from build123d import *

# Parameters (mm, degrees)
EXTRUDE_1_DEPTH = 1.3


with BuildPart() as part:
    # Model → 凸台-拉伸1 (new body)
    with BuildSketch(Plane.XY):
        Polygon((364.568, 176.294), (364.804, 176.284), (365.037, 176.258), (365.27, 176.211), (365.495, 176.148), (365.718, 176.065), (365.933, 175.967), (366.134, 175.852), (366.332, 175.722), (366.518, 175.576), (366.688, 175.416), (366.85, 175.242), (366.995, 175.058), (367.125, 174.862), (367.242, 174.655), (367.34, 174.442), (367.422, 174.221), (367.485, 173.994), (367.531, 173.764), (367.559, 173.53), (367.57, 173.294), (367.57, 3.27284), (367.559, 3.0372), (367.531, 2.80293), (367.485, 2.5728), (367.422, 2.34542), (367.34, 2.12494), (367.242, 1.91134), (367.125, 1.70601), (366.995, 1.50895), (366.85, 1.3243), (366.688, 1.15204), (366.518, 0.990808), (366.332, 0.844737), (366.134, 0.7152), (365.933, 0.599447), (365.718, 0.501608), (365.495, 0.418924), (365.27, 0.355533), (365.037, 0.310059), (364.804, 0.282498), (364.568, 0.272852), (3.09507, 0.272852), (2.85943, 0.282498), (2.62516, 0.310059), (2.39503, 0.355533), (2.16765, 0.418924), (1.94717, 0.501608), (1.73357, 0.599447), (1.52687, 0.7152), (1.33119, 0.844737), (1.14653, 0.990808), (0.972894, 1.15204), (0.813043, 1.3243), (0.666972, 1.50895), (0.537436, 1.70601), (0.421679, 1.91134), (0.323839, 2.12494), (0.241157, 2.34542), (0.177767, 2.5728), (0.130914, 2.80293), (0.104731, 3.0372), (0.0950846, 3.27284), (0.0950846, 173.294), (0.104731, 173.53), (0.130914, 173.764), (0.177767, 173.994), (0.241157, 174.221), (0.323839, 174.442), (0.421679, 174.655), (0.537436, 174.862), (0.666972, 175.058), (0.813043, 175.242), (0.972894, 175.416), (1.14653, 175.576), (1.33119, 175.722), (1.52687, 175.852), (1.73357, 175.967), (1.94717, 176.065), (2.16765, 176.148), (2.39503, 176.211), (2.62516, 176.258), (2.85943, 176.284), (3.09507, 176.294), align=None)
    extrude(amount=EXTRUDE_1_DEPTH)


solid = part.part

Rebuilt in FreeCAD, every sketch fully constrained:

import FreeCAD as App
import Part
import Sketcher

V = App.Vector
Q = App.Units.Quantity

doc = App.newDocument("Part")
body = doc.addObject("PartDesign::Body", "Body")

# Sketch on XY plane
sketch1 = doc.addObject("Sketcher::SketchObject", "Sketch")
body.addObject(sketch1)
sketch1.AttachmentSupport = (doc.XY_Plane, [""])
sketch1.MapMode = "FlatFace"
sketch1.addGeometry([
    Part.LineSegment(V(364.804, 176.284, 0), V(364.568, 176.294, 0)),  # 0
    Part.LineSegment(V(364.568, 176.294, 0), V(3.09507, 176.294, 0)),  # 1
    Part.LineSegment(V(3.09507, 176.294, 0), V(2.85943, 176.284, 0)),  # 2
    Part.LineSegment(V(2.85943, 176.284, 0), V(2.62516, 176.258, 0)),  # 3
    Part.LineSegment(V(2.62516, 176.258, 0), V(2.39503, 176.211, 0)),  # 4
    Part.LineSegment(V(2.39503, 176.211, 0), V(2.16765, 176.148, 0)),  # 5
    Part.LineSegment(V(2.16765, 176.148, 0), V(1.94717, 176.065, 0)),  # 6
    Part.LineSegment(V(1.94717, 176.065, 0), V(1.73357, 175.967, 0)),  # 7
    Part.LineSegment(V(1.73357, 175.967, 0), V(1.52687, 175.852, 0)),  # 8
    Part.LineSegment(V(1.52687, 175.852, 0), V(1.33119, 175.722, 0)),  # 9
    Part.LineSegment(V(1.33119, 175.722, 0), V(1.14653, 175.576, 0)),  # 10
    Part.LineSegment(V(1.14653, 175.576, 0), V(0.972894, 175.416, 0)),  # 11
    Part.LineSegment(V(0.972894, 175.416, 0), V(0.813043, 175.242, 0)),  # 12
    Part.LineSegment(V(0.813043, 175.242, 0), V(0.666972, 175.058, 0)),  # 13
    Part.LineSegment(V(0.666972, 175.058, 0), V(0.537436, 174.862, 0)),  # 14
    Part.LineSegment(V(0.537436, 174.862, 0), V(0.421679, 174.655, 0)),  # 15
    Part.LineSegment(V(0.421679, 174.655, 0), V(0.323839, 174.442, 0)),  # 16
    Part.LineSegment(V(0.323839, 174.442, 0), V(0.241157, 174.221, 0)),  # 17
    Part.LineSegment(V(0.241157, 174.221, 0), V(0.177767, 173.994, 0)),  # 18
    Part.LineSegment(V(0.177767, 173.994, 0), V(0.130914, 173.764, 0)),  # 19
    Part.LineSegment(V(0.130914, 173.764, 0), V(0.104731, 173.53, 0)),  # 20
    Part.LineSegment(V(0.104731, 173.53, 0), V(0.095085, 173.294, 0)),  # 21
    Part.LineSegment(V(0.095085, 173.294, 0), V(0.095085, 3.27284, 0)),  # 22
    Part.LineSegment(V(0.095085, 3.27284, 0), V(0.104731, 3.0372, 0)),  # 23
    Part.LineSegment(V(0.104731, 3.0372, 0), V(0.130914, 2.80293, 0)),  # 24
    Part.LineSegment(V(0.130914, 2.80293, 0), V(0.177767, 2.5728, 0)),  # 25
    Part.LineSegment(V(0.177767, 2.5728, 0), V(0.241157, 2.34542, 0)),  # 26
    Part.LineSegment(V(0.241157, 2.34542, 0), V(0.323839, 2.12494, 0)),  # 27
    Part.LineSegment(V(0.323839, 2.12494, 0), V(0.421679, 1.91134, 0)),  # 28
    Part.LineSegment(V(0.421679, 1.91134, 0), V(0.537436, 1.70601, 0)),  # 29
    Part.LineSegment(V(0.537436, 1.70601, 0), V(0.666972, 1.50895, 0)),  # 30
    Part.LineSegment(V(0.666972, 1.50895, 0), V(0.813043, 1.3243, 0)),  # 31
    Part.LineSegment(V(0.813043, 1.3243, 0), V(0.972894, 1.15204, 0)),  # 32
    Part.LineSegment(V(0.972894, 1.15204, 0), V(1.14653, 0.990808, 0)),  # 33
    Part.LineSegment(V(1.14653, 0.990808, 0), V(1.33119, 0.844737, 0)),  # 34
    Part.LineSegment(V(1.33119, 0.844737, 0), V(1.52687, 0.7152, 0)),  # 35
    Part.LineSegment(V(1.52687, 0.7152, 0), V(1.73357, 0.599447, 0)),  # 36
    Part.LineSegment(V(1.73357, 0.599447, 0), V(1.94717, 0.501608, 0)),  # 37
    Part.LineSegment(V(1.94717, 0.501608, 0), V(2.16765, 0.418924, 0)),  # 38
    Part.LineSegment(V(2.16765, 0.418924, 0), V(2.39503, 0.355533, 0)),  # 39
    Part.LineSegment(V(2.39503, 0.355533, 0), V(2.62516, 0.310059, 0)),  # 40
    Part.LineSegment(V(2.62516, 0.310059, 0), V(2.85943, 0.282498, 0)),  # 41
    Part.LineSegment(V(2.85943, 0.282498, 0), V(3.09507, 0.272852, 0)),  # 42
    Part.LineSegment(V(3.09507, 0.272852, 0), V(364.568, 0.272852, 0)),  # 43
    Part.LineSegment(V(364.568, 0.272852, 0), V(364.804, 0.282498, 0)),  # 44
    Part.LineSegment(V(364.804, 0.282498, 0), V(365.037, 0.310059, 0)),  # 45
    Part.LineSegment(V(365.037, 0.310059, 0), V(365.27, 0.355533, 0)),  # 46
    Part.LineSegment(V(365.27, 0.355533, 0), V(365.495, 0.418924, 0)),  # 47
    Part.LineSegment(V(365.495, 0.418924, 0), V(365.718, 0.501608, 0)),  # 48
    Part.LineSegment(V(365.718, 0.501608, 0), V(365.933, 0.599447, 0)),  # 49
    Part.LineSegment(V(365.933, 0.599447, 0), V(366.134, 0.7152, 0)),  # 50
    Part.LineSegment(V(366.134, 0.7152, 0), V(366.332, 0.844737, 0)),  # 51
    Part.LineSegment(V(366.332, 0.844737, 0), V(366.518, 0.990808, 0)),  # 52
    Part.LineSegment(V(366.518, 0.990808, 0), V(366.688, 1.15204, 0)),  # 53
    Part.LineSegment(V(366.688, 1.15204, 0), V(366.85, 1.3243, 0)),  # 54
    Part.LineSegment(V(366.85, 1.3243, 0), V(366.995, 1.50895, 0)),  # 55
    Part.LineSegment(V(366.995, 1.50895, 0), V(367.125, 1.70601, 0)),  # 56
    Part.LineSegment(V(367.125, 1.70601, 0), V(367.242, 1.91134, 0)),  # 57
    Part.LineSegment(V(367.242, 1.91134, 0), V(367.34, 2.12494, 0)),  # 58
    Part.LineSegment(V(367.34, 2.12494, 0), V(367.422, 2.34542, 0)),  # 59
    Part.LineSegment(V(367.422, 2.34542, 0), V(367.485, 2.5728, 0)),  # 60
    Part.LineSegment(V(367.485, 2.5728, 0), V(367.531, 2.80293, 0)),  # 61
    Part.LineSegment(V(367.531, 2.80293, 0), V(367.559, 3.0372, 0)),  # 62
    Part.LineSegment(V(367.559, 3.0372, 0), V(367.57, 3.27284, 0)),  # 63
    Part.LineSegment(V(367.57, 3.27284, 0), V(367.57, 173.294, 0)),  # 64
    Part.LineSegment(V(367.57, 173.294, 0), V(367.559, 173.53, 0)),  # 65
    Part.LineSegment(V(367.559, 173.53, 0), V(367.531, 173.764, 0)),  # 66
    Part.LineSegment(V(367.531, 173.764, 0), V(367.485, 173.994, 0)),  # 67
    Part.LineSegment(V(367.485, 173.994, 0), V(367.422, 174.221, 0)),  # 68
    Part.LineSegment(V(367.422, 174.221, 0), V(367.34, 174.442, 0)),  # 69
    Part.LineSegment(V(367.34, 174.442, 0), V(367.242, 174.655, 0)),  # 70
    Part.LineSegment(V(367.242, 174.655, 0), V(367.125, 174.862, 0)),  # 71
    Part.LineSegment(V(367.125, 174.862, 0), V(366.995, 175.058, 0)),  # 72
    Part.LineSegment(V(366.995, 175.058, 0), V(366.85, 175.242, 0)),  # 73
    Part.LineSegment(V(366.85, 175.242, 0), V(366.688, 175.416, 0)),  # 74
    Part.LineSegment(V(366.688, 175.416, 0), V(366.518, 175.576, 0)),  # 75
    Part.LineSegment(V(366.518, 175.576, 0), V(366.332, 175.722, 0)),  # 76
    Part.LineSegment(V(366.332, 175.722, 0), V(366.134, 175.852, 0)),  # 77
    Part.LineSegment(V(366.134, 175.852, 0), V(365.933, 175.967, 0)),  # 78
    Part.LineSegment(V(365.933, 175.967, 0), V(365.718, 176.065, 0)),  # 79
    Part.LineSegment(V(365.718, 176.065, 0), V(365.495, 176.148, 0)),  # 80
    Part.LineSegment(V(365.495, 176.148, 0), V(365.27, 176.211, 0)),  # 81
    Part.LineSegment(V(365.27, 176.211, 0), V(365.037, 176.258, 0)),  # 82
    Part.LineSegment(V(365.037, 176.258, 0), V(364.804, 176.284, 0)),  # 83
], False)
sketch1.addConstraint([
    Sketcher.Constraint("Coincident", 0, 2, 1, 1),
    Sketcher.Constraint("Coincident", 1, 2, 2, 1),
    Sketcher.Constraint("Coincident", 2, 2, 3, 1),
    Sketcher.Constraint("Coincident", 3, 2, 4, 1),
    Sketcher.Constraint("Coincident", 4, 2, 5, 1),
    Sketcher.Constraint("Coincident", 5, 2, 6, 1),
    Sketcher.Constraint("Coincident", 6, 2, 7, 1),
    Sketcher.Constraint("Coincident", 7, 2, 8, 1),
    Sketcher.Constraint("Coincident", 8, 2, 9, 1),
    Sketcher.Constraint("Coincident", 9, 2, 10, 1),
    Sketcher.Constraint("Coincident", 10, 2, 11, 1),
    Sketcher.Constraint("Coincident", 11, 2, 12, 1),
    Sketcher.Constraint("Coincident", 12, 2, 13, 1),
    Sketcher.Constraint("Coincident", 13, 2, 14, 1),
    Sketcher.Constraint("Coincident", 14, 2, 15, 1),
    Sketcher.Constraint("Coincident", 15, 2, 16, 1),
    Sketcher.Constraint("Coincident", 16, 2, 17, 1),
    Sketcher.Constraint("Coincident", 17, 2, 18, 1),
    Sketcher.Constraint("Coincident", 18, 2, 19, 1),
    Sketcher.Constraint("Coincident", 19, 2, 20, 1),
    Sketcher.Constraint("Coincident", 20, 2, 21, 1),
    Sketcher.Constraint("Coincident", 21, 2, 22, 1),
    Sketcher.Constraint("Coincident", 22, 2, 23, 1),
    Sketcher.Constraint("Coincident", 23, 2, 24, 1),
    Sketcher.Constraint("Coincident", 24, 2, 25, 1),
    Sketcher.Constraint("Coincident", 25, 2, 26, 1),
    Sketcher.Constraint("Coincident", 26, 2, 27, 1),
    Sketcher.Constraint("Coincident", 27, 2, 28, 1),
    Sketcher.Constraint("Coincident", 28, 2, 29, 1),
    Sketcher.Constraint("Coincident", 29, 2, 30, 1),
    Sketcher.Constraint("Coincident", 30, 2, 31, 1),
    Sketcher.Constraint("Coincident", 31, 2, 32, 1),
    Sketcher.Constraint("Coincident", 32, 2, 33, 1),
    Sketcher.Constraint("Coincident", 33, 2, 34, 1),
    Sketcher.Constraint("Coincident", 34, 2, 35, 1),
    Sketcher.Constraint("Coincident", 35, 2, 36, 1),
    Sketcher.Constraint("Coincident", 36, 2, 37, 1),
    Sketcher.Constraint("Coincident", 37, 2, 38, 1),
    Sketcher.Constraint("Coincident", 38, 2, 39, 1),
    Sketcher.Constraint("Coincident", 39, 2, 40, 1),
    Sketcher.Constraint("Coincident", 40, 2, 41, 1),
    Sketcher.Constraint("Coincident", 41, 2, 42, 1),
    Sketcher.Constraint("Coincident", 42, 2, 43, 1),
    Sketcher.Constraint("Coincident", 43, 2, 44, 1),
    Sketcher.Constraint("Coincident", 44, 2, 45, 1),
    Sketcher.Constraint("Coincident", 45, 2, 46, 1),
    Sketcher.Constraint("Coincident", 46, 2, 47, 1),
    Sketcher.Constraint("Coincident", 47, 2, 48, 1),
    Sketcher.Constraint("Coincident", 48, 2, 49, 1),
    Sketcher.Constraint("Coincident", 49, 2, 50, 1),
    Sketcher.Constraint("Coincident", 50, 2, 51, 1),
    Sketcher.Constraint("Coincident", 51, 2, 52, 1),
    Sketcher.Constraint("Coincident", 52, 2, 53, 1),
    Sketcher.Constraint("Coincident", 53, 2, 54, 1),
    Sketcher.Constraint("Coincident", 54, 2, 55, 1),
    Sketcher.Constraint("Coincident", 55, 2, 56, 1),
    Sketcher.Constraint("Coincident", 56, 2, 57, 1),
    Sketcher.Constraint("Coincident", 57, 2, 58, 1),
    Sketcher.Constraint("Coincident", 58, 2, 59, 1),
    Sketcher.Constraint("Coincident", 59, 2, 60, 1),
    Sketcher.Constraint("Coincident", 60, 2, 61, 1),
    Sketcher.Constraint("Coincident", 61, 2, 62, 1),
    Sketcher.Constraint("Coincident", 62, 2, 63, 1),
    Sketcher.Constraint("Coincident", 63, 2, 64, 1),
    Sketcher.Constraint("Coincident", 64, 2, 65, 1),
    Sketcher.Constraint("Coincident", 65, 2, 66, 1),
    Sketcher.Constraint("Coincident", 66, 2, 67, 1),
    Sketcher.Constraint("Coincident", 67, 2, 68, 1),
    Sketcher.Constraint("Coincident", 68, 2, 69, 1),
    Sketcher.Constraint("Coincident", 69, 2, 70, 1),
    Sketcher.Constraint("Coincident", 70, 2, 71, 1),
    Sketcher.Constraint("Coincident", 71, 2, 72, 1),
    Sketcher.Constraint("Coincident", 72, 2, 73, 1),
    Sketcher.Constraint("Coincident", 73, 2, 74, 1),
    Sketcher.Constraint("Coincident", 74, 2, 75, 1),
    Sketcher.Constraint("Coincident", 75, 2, 76, 1),
    Sketcher.Constraint("Coincident", 76, 2, 77, 1),
    Sketcher.Constraint("Coincident", 77, 2, 78, 1),
    Sketcher.Constraint("Coincident", 78, 2, 79, 1),
    Sketcher.Constraint("Coincident", 79, 2, 80, 1),
    Sketcher.Constraint("Coincident", 80, 2, 81, 1),
    Sketcher.Constraint("Coincident", 81, 2, 82, 1),
    Sketcher.Constraint("Coincident", 82, 2, 83, 1),
    Sketcher.Constraint("Coincident", 83, 2, 0, 1),
    Sketcher.Constraint("Horizontal", 1),
    Sketcher.Constraint("Vertical", 22),
    Sketcher.Constraint("Horizontal", 43),
    Sketcher.Constraint("Vertical", 64),
    Sketcher.Constraint("Horizontal", 41, 2, 44, 2),
    Sketcher.Constraint("Horizontal", 40, 2, 45, 2),
    Sketcher.Constraint("Horizontal", 39, 2, 46, 2),
    Sketcher.Constraint("Horizontal", 38, 2, 47, 2),
    Sketcher.Constraint("Horizontal", 37, 2, 48, 2),
    Sketcher.Constraint("Horizontal", 36, 2, 49, 2),
    Sketcher.Constraint("Horizontal", 35, 2, 50, 2),
    Sketcher.Constraint("Horizontal", 34, 2, 51, 2),
    Sketcher.Constraint("Horizontal", 33, 2, 52, 2),
    Sketcher.Constraint("Horizontal", 32, 2, 53, 2),
    Sketcher.Constraint("Horizontal", 31, 2, 54, 2),
    Sketcher.Constraint("Horizontal", 30, 2, 55, 2),
    Sketcher.Constraint("Horizontal", 29, 2, 56, 2),
    Sketcher.Constraint("Horizontal", 28, 2, 57, 2),
    Sketcher.Constraint("Horizontal", 27, 2, 58, 2),
    Sketcher.Constraint("Horizontal", 26, 2, 59, 2),
    Sketcher.Constraint("Horizontal", 25, 2, 60, 2),
    Sketcher.Constraint("Horizontal", 24, 2, 61, 2),
    Sketcher.Constraint("Horizontal", 23, 2, 62, 2),
    Sketcher.Constraint("Horizontal", 22, 2, 63, 2),
    Sketcher.Constraint("Horizontal", 21, 2, 64, 2),
    Sketcher.Constraint("Horizontal", 20, 2, 65, 2),
    Sketcher.Constraint("Horizontal", 19, 2, 66, 2),
    Sketcher.Constraint("Horizontal", 18, 2, 67, 2),
    Sketcher.Constraint("Horizontal", 17, 2, 68, 2),
    Sketcher.Constraint("Horizontal", 16, 2, 69, 2),
    Sketcher.Constraint("Horizontal", 15, 2, 70, 2),
    Sketcher.Constraint("Horizontal", 14, 2, 71, 2),
    Sketcher.Constraint("Horizontal", 13, 2, 72, 2),
    Sketcher.Constraint("Horizontal", 12, 2, 73, 2),
    Sketcher.Constraint("Horizontal", 11, 2, 74, 2),
    Sketcher.Constraint("Horizontal", 10, 2, 75, 2),
    Sketcher.Constraint("Horizontal", 9, 2, 76, 2),
    Sketcher.Constraint("Horizontal", 8, 2, 77, 2),
    Sketcher.Constraint("Horizontal", 7, 2, 78, 2),
    Sketcher.Constraint("Horizontal", 6, 2, 79, 2),
    Sketcher.Constraint("Horizontal", 5, 2, 80, 2),
    Sketcher.Constraint("Horizontal", 4, 2, 81, 2),
    Sketcher.Constraint("Horizontal", 3, 2, 82, 2),
    Sketcher.Constraint("Horizontal", 2, 2, 83, 2),
    Sketcher.Constraint("Vertical", 20, 2, 23, 2),
    Sketcher.Constraint("Vertical", 19, 2, 24, 2),
    Sketcher.Constraint("Vertical", 18, 2, 25, 2),
    Sketcher.Constraint("Vertical", 17, 2, 26, 2),
    Sketcher.Constraint("Vertical", 16, 2, 27, 2),
    Sketcher.Constraint("Vertical", 15, 2, 28, 2),
    Sketcher.Constraint("Vertical", 14, 2, 29, 2),
    Sketcher.Constraint("Vertical", 13, 2, 30, 2),
    Sketcher.Constraint("Vertical", 12, 2, 31, 2),
    Sketcher.Constraint("Vertical", 11, 2, 32, 2),
    Sketcher.Constraint("Vertical", 10, 2, 33, 2),
    Sketcher.Constraint("Vertical", 9, 2, 34, 2),
    Sketcher.Constraint("Vertical", 8, 2, 35, 2),
    Sketcher.Constraint("Vertical", 7, 2, 36, 2),
    Sketcher.Constraint("Vertical", 6, 2, 37, 2),
    Sketcher.Constraint("Vertical", 5, 2, 38, 2),
    Sketcher.Constraint("Vertical", 4, 2, 39, 2),
    Sketcher.Constraint("Vertical", 3, 2, 40, 2),
    Sketcher.Constraint("Vertical", 2, 2, 41, 2),
    Sketcher.Constraint("Vertical", 1, 2, 42, 2),
    Sketcher.Constraint("Vertical", 0, 2, 43, 2),
    Sketcher.Constraint("Vertical", 62, 2, 65, 2),
    Sketcher.Constraint("Vertical", 61, 2, 66, 2),
    Sketcher.Constraint("Vertical", 60, 2, 67, 2),
    Sketcher.Constraint("Vertical", 59, 2, 68, 2),
    Sketcher.Constraint("Vertical", 58, 2, 69, 2),
    Sketcher.Constraint("Vertical", 57, 2, 70, 2),
    Sketcher.Constraint("Vertical", 56, 2, 71, 2),
    Sketcher.Constraint("Vertical", 55, 2, 72, 2),
    Sketcher.Constraint("Vertical", 54, 2, 73, 2),
    Sketcher.Constraint("Vertical", 53, 2, 74, 2),
    Sketcher.Constraint("Vertical", 52, 2, 75, 2),
    Sketcher.Constraint("Vertical", 51, 2, 76, 2),
    Sketcher.Constraint("Vertical", 50, 2, 77, 2),
    Sketcher.Constraint("Vertical", 49, 2, 78, 2),
    Sketcher.Constraint("Vertical", 48, 2, 79, 2),
    Sketcher.Constraint("Vertical", 47, 2, 80, 2),
    Sketcher.Constraint("Vertical", 46, 2, 81, 2),
    Sketcher.Constraint("Vertical", 45, 2, 82, 2),
    Sketcher.Constraint("Vertical", 44, 2, 83, 2),
    Sketcher.Constraint("Equal", 28, 37),
    Sketcher.Constraint("Equal", 27, 38),
    Sketcher.Constraint("Equal", 26, 39),
    Sketcher.Constraint("Equal", 23, 42),
    Sketcher.Constraint("Equal", 21, 44),
    Sketcher.Constraint("Equal", 7, 58),
    Sketcher.Constraint("Equal", 5, 60),
    Sketcher.Constraint("Equal", 12, 79),
    Sketcher.Constraint("Angle", 76, Q("141.869992 deg")),
    Sketcher.Constraint("DistanceY", -1, 1, 20, 2, Q("173.53 mm")),
    Sketcher.Constraint("DistanceX", -1, 1, 46, 2, Q("365.27 mm")),
    Sketcher.Constraint("DistanceX", -1, 1, 54, 2, Q("366.85 mm")),
    Sketcher.Constraint("DistanceX", -1, 1, 58, 2, Q("367.34 mm")),
    Sketcher.Constraint("DistanceX", -1, 1, 63, 2, Q("367.57 mm")),
    Sketcher.Constraint("Distance", 32, Q("0.235002 mm")),
    Sketcher.Constraint("DistanceX", -1, 1, 0, 2, Q("364.568 mm")),
    Sketcher.Constraint("DistanceY", -1, 1, 0, 2, Q("176.294 mm")),
    Sketcher.Constraint("DistanceY", -1, 1, 2, 2, Q("176.284 mm")),
    Sketcher.Constraint("DistanceY", -1, 1, 3, 2, Q("176.258 mm")),
    Sketcher.Constraint("DistanceY", -1, 1, 4, 2, Q("176.211 mm")),
    Sketcher.Constraint("DistanceY", -1, 1, 5, 2, Q("176.148 mm")),
    Sketcher.Constraint("DistanceY", -1, 1, 6, 2, Q("176.065 mm")),
    Sketcher.Constraint("DistanceY", -1, 1, 7, 2, Q("175.967 mm")),
    Sketcher.Constraint("DistanceY", -1, 1, 8, 2, Q("175.852 mm")),
    Sketcher.Constraint("DistanceY", -1, 1, 9, 2, Q("175.722 mm")),
    Sketcher.Constraint("DistanceY", -1, 1, 10, 2, Q("175.576 mm")),
    Sketcher.Constraint("DistanceY", -1, 1, 11, 2, Q("175.416 mm")),
    Sketcher.Constraint("DistanceY", -1, 1, 12, 2, Q("175.242 mm")),
    Sketcher.Constraint("DistanceY", -1, 1, 13, 2, Q("175.058 mm")),
    Sketcher.Constraint("DistanceY", -1, 1, 14, 2, Q("174.862 mm")),
    Sketcher.Constraint("DistanceY", -1, 1, 15, 2, Q("174.655 mm")),
    Sketcher.Constraint("DistanceY", -1, 1, 16, 2, Q("174.442 mm")),
    Sketcher.Constraint("DistanceY", -1, 1, 17, 2, Q("174.221 mm")),
    Sketcher.Constraint("DistanceY", -1, 1, 18, 2, Q("173.994 mm")),
    Sketcher.Constraint("DistanceY", -1, 1, 19, 2, Q("173.764 mm")),
    Sketcher.Constraint("DistanceY", -1, 1, 21, 2, Q("173.294 mm")),
    Sketcher.Constraint("DistanceX", -1, 1, 44, 2, Q("364.804 mm")),
    Sketcher.Constraint("DistanceX", -1, 1, 45, 2, Q("365.037 mm")),
    Sketcher.Constraint("DistanceX", -1, 1, 47, 2, Q("365.495 mm")),
    Sketcher.Constraint("DistanceX", -1, 1, 48, 2, Q("365.718 mm")),
    Sketcher.Constraint("DistanceX", -1, 1, 49, 2, Q("365.933 mm")),
    Sketcher.Constraint("DistanceX", -1, 1, 50, 2, Q("366.134 mm")),
    Sketcher.Constraint("DistanceX", -1, 1, 51, 2, Q("366.332 mm")),
    Sketcher.Constraint("DistanceX", -1, 1, 53, 2, Q("366.688 mm")),
    Sketcher.Constraint("DistanceX", -1, 1, 55, 2, Q("366.995 mm")),
    Sketcher.Constraint("DistanceX", -1, 1, 56, 2, Q("367.125 mm")),
    Sketcher.Constraint("DistanceX", -1, 1, 57, 2, Q("367.242 mm")),
    Sketcher.Constraint("DistanceX", -1, 1, 59, 2, Q("367.422 mm")),
    Sketcher.Constraint("DistanceX", -1, 1, 60, 2, Q("367.485 mm")),
    Sketcher.Constraint("DistanceX", -1, 1, 61, 2, Q("367.531 mm")),
    Sketcher.Constraint("DistanceX", -1, 1, 62, 2, Q("367.559 mm")),
    Sketcher.Constraint("Distance", 52, Q("0.236501 mm")),
    Sketcher.Constraint("Distance", 53, Q("0.234298 mm")),
    Sketcher.Constraint("DistanceX", 1, 2, 1, 1, Q("361.47293 mm")),
    Sketcher.Constraint("DistanceY", 22, 2, 22, 1, Q("170.02116 mm")),
    Sketcher.Constraint("DistanceY", -1, 1, 23, 2, Q("3.0372 mm")),
    Sketcher.Constraint("DistanceY", -1, 1, 25, 2, Q("2.5728 mm")),
    Sketcher.Constraint("DistanceY", -1, 1, 31, 2, Q("1.3243 mm")),
    Sketcher.Constraint("DistanceY", -1, 1, 35, 2, Q("0.7152 mm")),
    Sketcher.Constraint("DistanceY", -1, 1, 41, 2, Q("0.282498 mm")),
    Sketcher.Constraint("Distance", 3, Q("0.235708 mm")),
    Sketcher.Constraint("Distance", 4, Q("0.23488 mm")),
    Sketcher.Constraint("Distance", 7, Q("0.235008 mm")),
    Sketcher.Constraint("Distance", 13, Q("0.234931 mm")),
    Sketcher.Constraint("Distance", 15, Q("0.237168 mm")),
    Sketcher.Constraint("Distance", 17, Q("0.23596 mm")),
    Sketcher.Constraint("Distance", 20, Q("0.23546 mm")),
    Sketcher.Constraint("Distance", 24, Q("0.235729 mm")),
    Sketcher.Constraint("Distance", 25, Q("0.234851 mm")),
    Sketcher.Constraint("Distance", 26, Q("0.236051 mm")),
    Sketcher.Constraint("Distance", 28, Q("0.234942 mm")),
    Sketcher.Constraint("Distance", 29, Q("0.235712 mm")),
    Sketcher.Constraint("Distance", 31, Q("0.235441 mm")),
    Sketcher.Constraint("Distance", 33, Q("0.23695 mm")),
    Sketcher.Constraint("Distance", 34, Q("0.235449 mm")),
    Sketcher.Constraint("Distance", 35, Q("0.234671 mm")),
    Sketcher.Constraint("Distance", 40, Q("0.23458 mm")),
    Sketcher.Constraint("Distance", 47, Q("0.233759 mm")),
    Sketcher.Constraint("DistanceX", -1, 1, 6, 2, Q("1.94717 mm")),
    Sketcher.Constraint("DistanceX", -1, 1, 8, 2, Q("1.52687 mm")),
    Sketcher.Constraint("DistanceX", -1, 1, 15, 2, Q("0.421679 mm")),
    Sketcher.Constraint("DistanceY", -1, 1, 27, 2, Q("2.12494 mm")),
    Sketcher.Constraint("DistanceY", -1, 1, 37, 2, Q("0.501608 mm")),
    Sketcher.Constraint("Distance", 21, Q("0.236197 mm")),
])
pad1 = doc.addObject("PartDesign::Pad", "Pad")
body.addObject(pad1)
pad1.Profile = sketch1
pad1.Length = 1.3

doc.recompute()
